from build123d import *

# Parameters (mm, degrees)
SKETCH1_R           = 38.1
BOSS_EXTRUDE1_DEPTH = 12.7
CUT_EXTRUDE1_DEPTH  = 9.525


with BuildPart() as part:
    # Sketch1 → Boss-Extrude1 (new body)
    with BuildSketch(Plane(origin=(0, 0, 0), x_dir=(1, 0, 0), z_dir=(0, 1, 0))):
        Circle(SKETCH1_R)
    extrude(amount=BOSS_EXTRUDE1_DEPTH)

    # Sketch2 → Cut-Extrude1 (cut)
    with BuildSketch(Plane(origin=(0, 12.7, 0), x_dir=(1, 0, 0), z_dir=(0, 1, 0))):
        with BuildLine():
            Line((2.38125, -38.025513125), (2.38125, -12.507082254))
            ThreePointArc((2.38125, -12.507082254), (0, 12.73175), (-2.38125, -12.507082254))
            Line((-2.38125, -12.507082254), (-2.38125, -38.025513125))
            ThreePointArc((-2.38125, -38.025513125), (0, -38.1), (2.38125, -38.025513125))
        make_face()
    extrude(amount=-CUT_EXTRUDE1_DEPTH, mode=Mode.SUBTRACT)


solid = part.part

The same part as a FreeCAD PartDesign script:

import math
import FreeCAD as App
import Part
import Sketcher
Q = App.Units.Quantity

doc = App.newDocument("Part")
body = doc.addObject("PartDesign::Body", "Body")

sketch1 = body.newObject("Sketcher::SketchObject", "Sketch")
sketch1.AttachmentSupport = (doc.getObject("XZ_Plane"), [""])
sketch1.MapMode = "FlatFace"
sketch1.addGeometry(Part.Circle(App.Vector(0, 0, 0), App.Vector(0, 0, 1), 38), False)
sketch1.addConstraint([
    Sketcher.Constraint("Coincident", 0, 3, -1, 1),
    Sketcher.Constraint("Diameter", 0, Q("3 in")),
])
pad1 = body.newObject("PartDesign::Pad", "Pad")
pad1.Profile = sketch1
pad1.Length = Q("0.5 in")
pad1.Reversed = True

sketch2 = body.newObject("Sketcher::SketchObject", "Sketch001")
sketch2.AttachmentSupport = (doc.getObject("XZ_Plane"), [""])
sketch2.MapMode = "FlatFace"
sketch2.AttachmentOffset = App.Placement(App.Vector(0, 0, -0.5 * 25.4), App.Rotation())
sketch2.addGeometry([
    Part.LineSegment(App.Vector(2.4, 38, 0), App.Vector(2.4, 12.5, 0)),
    Part.ArcOfCircle(Part.Circle(App.Vector(0, 0, 0), App.Vector(0, 0, 1), 12.7), math.radians(101), math.radians(439)),
    Part.LineSegment(App.Vector(-2.4, 12.5, 0), App.Vector(-2.4, 38, 0)),
    Part.ArcOfCircle(Part.Circle(App.Vector(0, 0, 0), App.Vector(0, 0, 1), 38.1), math.radians(86.42), math.radians(93.58)),
], False)
sketch2.addConstraint([
    Sketcher.Constraint("Coincident", 0, 2, 1, 2),
    Sketcher.Constraint("Coincident", 1, 1, 2, 1),
    Sketcher.Constraint("Coincident", 2, 2, 3, 2),
    Sketcher.Constraint("Coincident", 3, 1, 0, 1),
    Sketcher.Constraint("Vertical", 0),
    Sketcher.Constraint("Vertical", 2),
    Sketcher.Constraint("Coincident", 1, 3, -1, 1),
    Sketcher.Constraint("Coincident", 3, 3, -1, 1),
    Sketcher.Constraint("Horizontal", 0, 2, 1, 1),
    Sketcher.Constraint("Radius", 3, Q("1.5 in")),
    Sketcher.Constraint("DistanceX", -1, 1, 0, 2, Q("0.09375 in")),
    Sketcher.Constraint("Radius", 1, 12.73175),
])
pocket1 = body.newObject("PartDesign::Pocket", "Pocket")
pocket1.Profile = sketch2
pocket1.Length = Q("0.375 in")
pocket1.Reversed = True

doc.recompute()
